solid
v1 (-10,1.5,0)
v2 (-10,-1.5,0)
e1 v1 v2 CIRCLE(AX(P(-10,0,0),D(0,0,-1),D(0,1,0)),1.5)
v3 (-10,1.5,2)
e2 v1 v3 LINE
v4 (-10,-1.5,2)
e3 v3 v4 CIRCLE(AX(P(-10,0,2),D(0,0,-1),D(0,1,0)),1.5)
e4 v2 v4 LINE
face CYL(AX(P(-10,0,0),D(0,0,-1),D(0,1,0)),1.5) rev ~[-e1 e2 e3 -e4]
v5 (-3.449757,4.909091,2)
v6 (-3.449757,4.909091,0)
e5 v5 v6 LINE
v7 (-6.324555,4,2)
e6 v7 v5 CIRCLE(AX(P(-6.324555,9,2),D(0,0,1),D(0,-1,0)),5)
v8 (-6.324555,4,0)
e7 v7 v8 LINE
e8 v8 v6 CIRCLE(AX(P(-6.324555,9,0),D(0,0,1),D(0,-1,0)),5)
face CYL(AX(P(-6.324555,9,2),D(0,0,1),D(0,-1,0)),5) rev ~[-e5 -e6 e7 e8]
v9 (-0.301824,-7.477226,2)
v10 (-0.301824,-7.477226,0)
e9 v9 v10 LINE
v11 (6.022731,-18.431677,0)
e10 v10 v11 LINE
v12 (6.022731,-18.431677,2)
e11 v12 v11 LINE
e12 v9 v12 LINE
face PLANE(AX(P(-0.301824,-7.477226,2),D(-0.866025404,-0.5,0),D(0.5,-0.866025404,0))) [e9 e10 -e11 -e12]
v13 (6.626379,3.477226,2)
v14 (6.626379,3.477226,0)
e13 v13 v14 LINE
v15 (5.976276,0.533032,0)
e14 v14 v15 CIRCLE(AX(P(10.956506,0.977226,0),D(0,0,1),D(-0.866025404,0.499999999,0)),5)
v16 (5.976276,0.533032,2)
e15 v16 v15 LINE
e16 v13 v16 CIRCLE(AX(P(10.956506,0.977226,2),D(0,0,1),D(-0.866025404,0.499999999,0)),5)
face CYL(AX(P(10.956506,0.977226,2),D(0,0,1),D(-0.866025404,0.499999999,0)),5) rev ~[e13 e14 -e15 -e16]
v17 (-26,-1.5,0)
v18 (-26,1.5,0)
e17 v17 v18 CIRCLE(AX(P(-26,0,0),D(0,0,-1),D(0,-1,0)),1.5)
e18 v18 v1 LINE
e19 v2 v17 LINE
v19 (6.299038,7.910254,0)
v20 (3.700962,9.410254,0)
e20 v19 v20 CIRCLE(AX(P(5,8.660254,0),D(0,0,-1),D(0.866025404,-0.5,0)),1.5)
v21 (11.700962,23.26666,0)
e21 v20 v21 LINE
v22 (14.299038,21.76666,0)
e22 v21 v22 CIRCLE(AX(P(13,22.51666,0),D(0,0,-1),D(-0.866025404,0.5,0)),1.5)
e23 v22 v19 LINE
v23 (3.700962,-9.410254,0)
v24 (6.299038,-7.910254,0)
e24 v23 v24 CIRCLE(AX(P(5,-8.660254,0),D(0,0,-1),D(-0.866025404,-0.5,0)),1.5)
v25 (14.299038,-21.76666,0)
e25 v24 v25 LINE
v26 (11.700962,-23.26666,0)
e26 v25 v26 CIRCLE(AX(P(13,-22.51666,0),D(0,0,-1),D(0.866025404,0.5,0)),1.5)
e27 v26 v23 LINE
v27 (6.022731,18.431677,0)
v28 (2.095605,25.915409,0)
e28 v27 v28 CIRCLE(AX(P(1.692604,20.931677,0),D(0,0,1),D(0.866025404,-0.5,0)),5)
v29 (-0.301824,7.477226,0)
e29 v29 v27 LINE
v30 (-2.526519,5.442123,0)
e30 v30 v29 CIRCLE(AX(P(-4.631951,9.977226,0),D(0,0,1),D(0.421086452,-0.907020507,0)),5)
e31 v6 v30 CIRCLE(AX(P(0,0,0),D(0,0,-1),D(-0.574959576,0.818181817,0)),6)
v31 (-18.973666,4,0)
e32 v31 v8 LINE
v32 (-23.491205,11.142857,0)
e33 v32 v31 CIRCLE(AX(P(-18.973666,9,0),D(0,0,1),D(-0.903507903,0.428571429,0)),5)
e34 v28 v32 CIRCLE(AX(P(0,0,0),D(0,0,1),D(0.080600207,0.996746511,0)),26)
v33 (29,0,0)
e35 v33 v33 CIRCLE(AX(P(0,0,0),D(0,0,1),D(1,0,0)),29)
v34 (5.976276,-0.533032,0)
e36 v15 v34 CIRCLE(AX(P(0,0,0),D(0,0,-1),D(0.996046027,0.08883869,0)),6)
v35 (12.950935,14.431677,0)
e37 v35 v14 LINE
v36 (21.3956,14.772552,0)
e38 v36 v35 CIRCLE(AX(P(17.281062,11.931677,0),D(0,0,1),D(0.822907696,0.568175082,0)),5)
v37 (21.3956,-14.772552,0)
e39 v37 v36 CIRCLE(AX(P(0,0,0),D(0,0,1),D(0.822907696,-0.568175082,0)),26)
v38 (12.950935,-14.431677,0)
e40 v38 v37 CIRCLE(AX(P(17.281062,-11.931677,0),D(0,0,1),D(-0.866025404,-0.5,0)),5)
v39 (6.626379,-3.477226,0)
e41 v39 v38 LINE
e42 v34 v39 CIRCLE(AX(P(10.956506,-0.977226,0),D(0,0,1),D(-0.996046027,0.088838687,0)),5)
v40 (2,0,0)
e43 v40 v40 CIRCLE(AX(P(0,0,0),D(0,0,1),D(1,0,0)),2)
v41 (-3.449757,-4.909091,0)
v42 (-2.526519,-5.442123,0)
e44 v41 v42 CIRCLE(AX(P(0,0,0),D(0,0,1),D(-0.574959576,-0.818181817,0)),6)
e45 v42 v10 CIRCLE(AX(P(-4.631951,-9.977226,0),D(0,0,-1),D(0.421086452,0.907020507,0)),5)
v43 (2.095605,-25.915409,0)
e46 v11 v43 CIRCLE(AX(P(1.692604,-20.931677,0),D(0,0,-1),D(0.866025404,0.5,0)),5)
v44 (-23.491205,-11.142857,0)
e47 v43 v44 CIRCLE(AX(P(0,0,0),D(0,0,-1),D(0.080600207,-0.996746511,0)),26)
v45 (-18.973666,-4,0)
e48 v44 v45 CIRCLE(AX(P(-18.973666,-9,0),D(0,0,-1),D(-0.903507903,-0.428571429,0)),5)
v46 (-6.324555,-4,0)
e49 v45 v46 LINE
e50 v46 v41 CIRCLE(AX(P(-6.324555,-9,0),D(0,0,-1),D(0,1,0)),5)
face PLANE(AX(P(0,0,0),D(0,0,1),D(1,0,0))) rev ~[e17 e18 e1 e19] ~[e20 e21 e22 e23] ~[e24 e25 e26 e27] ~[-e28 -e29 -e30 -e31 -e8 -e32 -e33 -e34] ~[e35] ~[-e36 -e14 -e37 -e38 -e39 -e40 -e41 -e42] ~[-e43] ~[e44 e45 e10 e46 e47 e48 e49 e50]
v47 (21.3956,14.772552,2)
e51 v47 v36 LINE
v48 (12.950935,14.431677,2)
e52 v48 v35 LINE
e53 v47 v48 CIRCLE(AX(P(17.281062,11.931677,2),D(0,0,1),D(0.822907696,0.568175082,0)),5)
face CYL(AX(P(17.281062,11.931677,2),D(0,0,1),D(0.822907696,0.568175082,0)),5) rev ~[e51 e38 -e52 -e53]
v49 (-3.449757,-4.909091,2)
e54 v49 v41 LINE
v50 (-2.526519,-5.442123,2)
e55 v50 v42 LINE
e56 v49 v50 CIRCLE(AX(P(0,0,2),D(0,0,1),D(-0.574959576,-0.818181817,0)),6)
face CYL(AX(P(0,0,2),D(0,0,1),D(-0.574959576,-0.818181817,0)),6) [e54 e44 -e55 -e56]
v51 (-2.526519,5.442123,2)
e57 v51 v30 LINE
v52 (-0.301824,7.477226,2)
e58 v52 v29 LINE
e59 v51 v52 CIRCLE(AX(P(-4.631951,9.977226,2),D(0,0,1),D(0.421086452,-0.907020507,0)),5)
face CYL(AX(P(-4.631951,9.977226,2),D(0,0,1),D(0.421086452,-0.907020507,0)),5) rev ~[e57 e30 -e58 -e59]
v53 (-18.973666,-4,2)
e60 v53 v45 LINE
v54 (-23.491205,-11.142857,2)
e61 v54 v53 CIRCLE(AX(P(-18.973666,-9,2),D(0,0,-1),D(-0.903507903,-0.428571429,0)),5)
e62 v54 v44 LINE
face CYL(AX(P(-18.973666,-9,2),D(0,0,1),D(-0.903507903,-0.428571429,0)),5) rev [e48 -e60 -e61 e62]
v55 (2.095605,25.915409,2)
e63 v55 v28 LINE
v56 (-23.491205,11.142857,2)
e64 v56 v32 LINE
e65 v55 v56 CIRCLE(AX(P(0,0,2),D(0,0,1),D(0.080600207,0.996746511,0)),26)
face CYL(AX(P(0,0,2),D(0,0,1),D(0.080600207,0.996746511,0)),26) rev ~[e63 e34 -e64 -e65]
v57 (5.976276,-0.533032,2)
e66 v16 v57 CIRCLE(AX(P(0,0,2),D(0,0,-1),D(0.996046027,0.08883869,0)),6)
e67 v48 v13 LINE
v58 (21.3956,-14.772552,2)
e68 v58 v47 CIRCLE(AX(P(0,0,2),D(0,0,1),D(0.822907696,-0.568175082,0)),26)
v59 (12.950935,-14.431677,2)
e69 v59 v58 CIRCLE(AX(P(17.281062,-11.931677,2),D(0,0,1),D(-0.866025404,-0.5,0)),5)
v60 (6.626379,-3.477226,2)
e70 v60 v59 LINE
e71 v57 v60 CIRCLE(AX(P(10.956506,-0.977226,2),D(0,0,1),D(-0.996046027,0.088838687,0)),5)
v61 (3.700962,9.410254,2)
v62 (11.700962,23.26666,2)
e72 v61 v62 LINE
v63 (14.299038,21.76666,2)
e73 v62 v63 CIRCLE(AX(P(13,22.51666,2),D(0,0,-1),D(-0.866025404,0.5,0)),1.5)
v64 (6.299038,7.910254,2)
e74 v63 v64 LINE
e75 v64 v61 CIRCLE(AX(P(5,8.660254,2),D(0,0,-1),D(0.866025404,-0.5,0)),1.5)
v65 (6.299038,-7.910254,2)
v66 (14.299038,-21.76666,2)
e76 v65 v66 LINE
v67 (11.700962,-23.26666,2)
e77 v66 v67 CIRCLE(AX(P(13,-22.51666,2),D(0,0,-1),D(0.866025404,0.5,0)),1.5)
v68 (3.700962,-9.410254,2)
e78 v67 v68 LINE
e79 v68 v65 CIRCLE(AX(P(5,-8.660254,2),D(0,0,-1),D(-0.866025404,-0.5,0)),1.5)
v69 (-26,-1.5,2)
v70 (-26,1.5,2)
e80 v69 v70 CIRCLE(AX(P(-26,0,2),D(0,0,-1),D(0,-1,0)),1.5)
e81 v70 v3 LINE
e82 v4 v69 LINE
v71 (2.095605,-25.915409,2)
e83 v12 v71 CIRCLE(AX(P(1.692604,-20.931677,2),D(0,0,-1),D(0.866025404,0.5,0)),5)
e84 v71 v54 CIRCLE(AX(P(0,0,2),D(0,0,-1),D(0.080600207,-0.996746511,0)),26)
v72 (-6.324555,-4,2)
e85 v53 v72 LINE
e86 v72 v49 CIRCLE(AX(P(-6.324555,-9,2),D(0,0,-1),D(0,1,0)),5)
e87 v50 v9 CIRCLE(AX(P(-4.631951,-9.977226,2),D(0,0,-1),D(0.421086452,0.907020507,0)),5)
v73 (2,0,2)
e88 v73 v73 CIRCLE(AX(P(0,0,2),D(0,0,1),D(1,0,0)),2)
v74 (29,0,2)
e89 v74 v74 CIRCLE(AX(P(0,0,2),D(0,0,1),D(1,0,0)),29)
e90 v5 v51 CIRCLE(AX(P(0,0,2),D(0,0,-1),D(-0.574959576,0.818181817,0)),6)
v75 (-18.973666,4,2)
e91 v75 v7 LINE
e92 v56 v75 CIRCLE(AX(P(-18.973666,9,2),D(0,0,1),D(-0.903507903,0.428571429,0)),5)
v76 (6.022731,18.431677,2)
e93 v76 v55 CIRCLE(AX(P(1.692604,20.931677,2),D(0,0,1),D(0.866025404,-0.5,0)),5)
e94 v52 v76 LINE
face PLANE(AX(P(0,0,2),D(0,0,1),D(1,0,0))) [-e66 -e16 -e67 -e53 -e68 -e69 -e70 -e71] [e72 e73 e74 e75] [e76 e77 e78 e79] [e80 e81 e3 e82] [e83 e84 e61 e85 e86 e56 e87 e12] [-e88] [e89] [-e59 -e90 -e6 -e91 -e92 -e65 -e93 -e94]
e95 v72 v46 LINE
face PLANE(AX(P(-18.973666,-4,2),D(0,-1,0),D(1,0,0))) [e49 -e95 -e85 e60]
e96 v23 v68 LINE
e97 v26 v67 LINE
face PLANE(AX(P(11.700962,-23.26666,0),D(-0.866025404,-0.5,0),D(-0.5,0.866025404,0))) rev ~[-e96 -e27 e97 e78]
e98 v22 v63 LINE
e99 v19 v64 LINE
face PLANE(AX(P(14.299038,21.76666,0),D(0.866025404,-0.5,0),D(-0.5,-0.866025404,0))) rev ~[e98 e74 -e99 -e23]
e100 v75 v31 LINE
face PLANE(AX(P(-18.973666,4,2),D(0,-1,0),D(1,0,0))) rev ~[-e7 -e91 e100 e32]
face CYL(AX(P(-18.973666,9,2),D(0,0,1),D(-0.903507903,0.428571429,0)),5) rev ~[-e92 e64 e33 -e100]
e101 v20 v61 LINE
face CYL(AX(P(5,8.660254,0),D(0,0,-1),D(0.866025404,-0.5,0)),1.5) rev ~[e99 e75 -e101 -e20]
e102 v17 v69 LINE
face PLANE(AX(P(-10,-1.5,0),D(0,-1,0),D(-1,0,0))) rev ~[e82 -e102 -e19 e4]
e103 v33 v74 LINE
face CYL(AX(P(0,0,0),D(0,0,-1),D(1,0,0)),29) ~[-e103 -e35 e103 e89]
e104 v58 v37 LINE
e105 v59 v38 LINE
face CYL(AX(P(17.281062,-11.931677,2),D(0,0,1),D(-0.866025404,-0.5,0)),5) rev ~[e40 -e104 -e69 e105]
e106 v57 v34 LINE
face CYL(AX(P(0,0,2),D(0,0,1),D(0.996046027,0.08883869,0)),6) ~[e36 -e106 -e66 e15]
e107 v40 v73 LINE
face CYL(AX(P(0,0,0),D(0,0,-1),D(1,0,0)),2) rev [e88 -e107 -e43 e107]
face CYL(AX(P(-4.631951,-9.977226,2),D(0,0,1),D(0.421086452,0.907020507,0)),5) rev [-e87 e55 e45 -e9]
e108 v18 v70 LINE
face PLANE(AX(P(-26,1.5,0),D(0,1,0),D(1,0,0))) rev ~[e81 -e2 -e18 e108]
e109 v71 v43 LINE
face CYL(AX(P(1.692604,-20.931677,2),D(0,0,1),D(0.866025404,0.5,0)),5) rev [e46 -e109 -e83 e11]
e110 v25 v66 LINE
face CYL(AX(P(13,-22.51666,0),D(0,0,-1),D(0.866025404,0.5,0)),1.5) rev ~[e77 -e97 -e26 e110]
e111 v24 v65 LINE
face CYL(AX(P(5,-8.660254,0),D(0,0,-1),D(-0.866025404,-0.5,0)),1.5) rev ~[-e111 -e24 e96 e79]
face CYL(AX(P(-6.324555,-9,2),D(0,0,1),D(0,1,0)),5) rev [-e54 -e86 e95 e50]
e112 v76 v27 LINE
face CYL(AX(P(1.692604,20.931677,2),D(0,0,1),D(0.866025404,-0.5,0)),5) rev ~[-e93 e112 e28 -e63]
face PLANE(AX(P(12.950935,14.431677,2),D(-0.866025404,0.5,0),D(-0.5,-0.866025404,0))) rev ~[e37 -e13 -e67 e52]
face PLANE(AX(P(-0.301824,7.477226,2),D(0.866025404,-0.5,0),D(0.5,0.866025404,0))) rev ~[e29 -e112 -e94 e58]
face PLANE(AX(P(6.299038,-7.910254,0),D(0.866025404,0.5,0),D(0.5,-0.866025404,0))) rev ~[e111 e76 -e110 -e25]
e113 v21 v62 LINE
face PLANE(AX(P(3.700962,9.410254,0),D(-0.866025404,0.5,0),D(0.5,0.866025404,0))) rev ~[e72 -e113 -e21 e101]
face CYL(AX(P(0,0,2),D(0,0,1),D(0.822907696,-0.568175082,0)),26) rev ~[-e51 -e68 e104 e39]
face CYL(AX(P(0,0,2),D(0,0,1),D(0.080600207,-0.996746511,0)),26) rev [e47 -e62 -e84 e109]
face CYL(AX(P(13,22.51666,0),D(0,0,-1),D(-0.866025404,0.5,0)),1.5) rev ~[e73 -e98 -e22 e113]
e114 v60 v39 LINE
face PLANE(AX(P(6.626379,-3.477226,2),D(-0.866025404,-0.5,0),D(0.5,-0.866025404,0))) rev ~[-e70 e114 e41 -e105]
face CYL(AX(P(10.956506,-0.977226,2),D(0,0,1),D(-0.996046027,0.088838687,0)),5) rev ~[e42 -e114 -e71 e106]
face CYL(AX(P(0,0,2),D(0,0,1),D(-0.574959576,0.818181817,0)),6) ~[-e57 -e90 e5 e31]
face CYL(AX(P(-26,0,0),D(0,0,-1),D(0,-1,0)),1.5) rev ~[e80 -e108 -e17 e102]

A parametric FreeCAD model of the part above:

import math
import FreeCAD as App
import Part
import Sketcher

V = App.Vector
Q = App.Units.Quantity

doc = App.newDocument("Part")
body = doc.addObject("PartDesign::Body", "Body")

# Sketch on XY plane
sketch1 = body.newObject("Sketcher::SketchObject", "Sketch")
sketch1.AttachmentSupport = (doc.getObject("XY_Plane"), [""])
sketch1.MapMode = "FlatFace"
sketch1.addGeometry([
    Part.Circle(V(0, 0, 0), V(0, 0, 1), 29),  # 0
    Part.ArcOfCircle(Part.Circle(V(5, -8.660254, 0), V(0, 0, 1), 1.5), math.radians(30), math.radians(210)),  # 1
    Part.LineSegment(V(6.299038, -7.910254, 0), V(14.299038, -21.76666, 0)),  # 2
    Part.ArcOfCircle(Part.Circle(V(13, -22.51666, 0), V(0, 0, 1), 1.5), math.radians(-150), math.radians(30)),  # 3
    Part.LineSegment(V(11.700962, -23.26666, 0), V(3.700962, -9.410254, 0)),  # 4
    Part.ArcOfCircle(Part.Circle(V(-10, 0, 0), V(0, 0, 1), 1.5), math.radians(-90), math.radians(90)),  # 5
    Part.LineSegment(V(-10, -1.5, 0), V(-26, -1.5, 0)),  # 6
    Part.ArcOfCircle(Part.Circle(V(-26, 0, 0), V(0, 0, 1), 1.5), math.radians(90), math.radians(270)),  # 7
    Part.LineSegment(V(-26, 1.5, 0), V(-10, 1.5, 0)),  # 8
    Part.Circle(V(0, 0, 0), V(0, 0, 1), 2),  # 9
    Part.ArcOfCircle(Part.Circle(V(5, 8.660254, 0), V(0, 0, 1), 1.5), math.radians(150), math.radians(330)),  # 10
    Part.LineSegment(V(3.700962, 9.410254, 0), V(11.700962, 23.26666, 0)),  # 11
    Part.ArcOfCircle(Part.Circle(V(13, 22.51666, 0), V(0, 0, 1), 1.5), math.radians(-30), math.radians(150)),  # 12
    Part.LineSegment(V(14.299038, 21.76666, 0), V(6.299038, 7.910254, 0)),  # 13
], False)
sketch1.addConstraint([
    Sketcher.Constraint("Tangent", 1, 1, 2, 1),
    Sketcher.Constraint("Tangent", 2, 2, 3, 2),
    Sketcher.Constraint("Tangent", 3, 1, 4, 1),
    Sketcher.Constraint("Tangent", 4, 2, 1, 2),
    Sketcher.Constraint("Tangent", 5, 1, 6, 1),
    Sketcher.Constraint("Tangent", 6, 2, 7, 2),
    Sketcher.Constraint("Tangent", 7, 1, 8, 1),
    Sketcher.Constraint("Tangent", 8, 2, 5, 2),
    Sketcher.Constraint("Tangent", 10, 1, 11, 1),
    Sketcher.Constraint("Tangent", 11, 2, 12, 2),
    Sketcher.Constraint("Tangent", 12, 1, 13, 1),
    Sketcher.Constraint("Tangent", 13, 2, 10, 2),
    Sketcher.Constraint("Horizontal", 6),
    Sketcher.Constraint("Horizontal", 8),
    Sketcher.Constraint("Coincident", 0, 3, -1, 1),
    Sketcher.Constraint("Coincident", 9, 3, -1, 1),
    Sketcher.Constraint("Equal", 1, 3),
    Sketcher.Constraint("Equal", 3, 5),
    Sketcher.Constraint("Equal", 7, 10),
    Sketcher.Constraint("Equal", 10, 12),
    Sketcher.Constraint("Symmetric", 1, 3, 10, 3, -1),
    Sketcher.Constraint("Symmetric", 3, 3, 12, 3, -1),
    Sketcher.Constraint("PointOnObject", 5, 3, -1),
    Sketcher.Constraint("Diameter", 0, Q("58 mm")),
    Sketcher.Constraint("Diameter", 9, Q("4 mm")),
    Sketcher.Constraint("Radius", 1, Q("1.5 mm")),
    Sketcher.Constraint("DistanceX", 6, 2, 6, 1, Q("16 mm")),
    Sketcher.Constraint("Angle", 2, Q("-60 deg")),
    Sketcher.Constraint("Distance", 2, Q("16 mm")),
    Sketcher.Constraint("DistanceX", -1, 1, 1, 3, Q("5 mm")),
    Sketcher.Constraint("DistanceX", 5, 3, -1, 1, Q("10 mm")),
    Sketcher.Constraint("DistanceY", 3, 3, -1, 1, Q("22.51666 mm")),
])
pad1 = body.newObject("PartDesign::Pad", "Pad")
pad1.Profile = sketch1
pad1.Length = 2

# Sketch on XY plane
sketch2 = body.newObject("Sketcher::SketchObject", "Sketch001")
sketch2.AttachmentSupport = (doc.getObject("XY_Plane"), [""])
sketch2.MapMode = "FlatFace"
sketch2.AttachmentOffset = App.Placement(V(0, 0, 2), App.Rotation())
sketch2.addGeometry([
    Part.LineSegment(V(-18.973666, 4, 0), V(-6.324555, 4, 0)),  # 0
    Part.ArcOfCircle(Part.Circle(V(-6.324555, 9, 0), V(0, 0, 1), 5), math.radians(-90), math.radians(-54.903199)),  # 1
    Part.ArcOfCircle(Part.Circle(V(0, 0, 0), V(0, 0, 1), 6), math.radians(114.903199), math.radians(125.096801)),  # 2
    Part.ArcOfCircle(Part.Circle(V(-4.631951, 9.977226, 0), V(0, 0, 1), 5), math.radians(-65.096801), math.radians(-30)),  # 3
    Part.LineSegment(V(-0.301824, 7.477226, 0), V(6.022731, 18.431677, 0)),  # 4
    Part.ArcOfCircle(Part.Circle(V(1.692604, 20.931677, 0), V(0, 0, 1), 5), math.radians(-30), math.radians(85.376934)),  # 5
    Part.ArcOfCircle(Part.Circle(V(0, 0, 0), V(0, 0, 1), 26), math.radians(85.376934), math.radians(154.623066)),  # 6
    Part.ArcOfCircle(Part.Circle(V(-18.973666, 9, 0), V(0, 0, 1), 5), math.radians(154.623066), math.radians(270)),  # 7
    Part.LineSegment(V(-6.324555, -4, 0), V(-18.973666, -4, 0)),  # 8
    Part.ArcOfCircle(Part.Circle(V(-18.973666, -9, 0), V(0, 0, 1), 5), math.radians(90), math.radians(205.376934)),  # 9
    Part.ArcOfCircle(Part.Circle(V(0, 0, 0), V(0, 0, 1), 26), math.radians(-154.623066), math.radians(-85.376934)),  # 10
    Part.ArcOfCircle(Part.Circle(V(1.692604, -20.931677, 0), V(0, 0, 1), 5), math.radians(-85.376934), math.radians(30)),  # 11
    Part.LineSegment(V(6.022731, -18.431677, 0), V(-0.301824, -7.477226, 0)),  # 12
    Part.ArcOfCircle(Part.Circle(V(-4.631951, -9.977226, 0), V(0, 0, 1), 5), math.radians(30), math.radians(65.096801)),  # 13
    Part.ArcOfCircle(Part.Circle(V(0, 0, 0), V(0, 0, 1), 6), math.radians(-125.096801), math.radians(-114.903199)),  # 14
    Part.ArcOfCircle(Part.Circle(V(-6.324555, -9, 0), V(0, 0, 1), 5), math.radians(54.903199), math.radians(90)),  # 15
    Part.LineSegment(V(12.950935, 14.431677, 0), V(6.626379, 3.477226, 0)),  # 16
    Part.ArcOfCircle(Part.Circle(V(10.956506, 0.977226, 0), V(0, 0, 1), 5), math.radians(150), math.radians(185.096801)),  # 17
    Part.ArcOfCircle(Part.Circle(V(0, 0, 0), V(0, 0, 1), 6), math.radians(-5.096801), math.radians(5.096801)),  # 18
    Part.ArcOfCircle(Part.Circle(V(10.956506, -0.977226, 0), V(0, 0, 1), 5), math.radians(174.903199), math.radians(210)),  # 19
    Part.LineSegment(V(6.626379, -3.477226, 0), V(12.950935, -14.431677, 0)),  # 20
    Part.ArcOfCircle(Part.Circle(V(17.281062, -11.931677, 0), V(0, 0, 1), 5), math.radians(-150), math.radians(-34.623066)),  # 21
    Part.ArcOfCircle(Part.Circle(V(0, 0, 0), V(0, 0, 1), 26), math.radians(-34.623066), math.radians(34.623066)),  # 22
    Part.ArcOfCircle(Part.Circle(V(17.281062, 11.931677, 0), V(0, 0, 1), 5), math.radians(34.623066), math.radians(150)),  # 23
], False)
sketch2.addConstraint([
    Sketcher.Constraint("Tangent", 0, 2, 1, 1),
    Sketcher.Constraint("Tangent", 1, 2, 2, 2),
    Sketcher.Constraint("Tangent", 2, 1, 3, 1),
    Sketcher.Constraint("Tangent", 3, 2, 4, 1),
    Sketcher.Constraint("Tangent", 4, 2, 5, 1),
    Sketcher.Constraint("Tangent", 5, 2, 6, 1),
    Sketcher.Constraint("Tangent", 6, 2, 7, 1),
    Sketcher.Constraint("Tangent", 7, 2, 0, 1),
    Sketcher.Constraint("Tangent", 8, 2, 9, 1),
    Sketcher.Constraint("Tangent", 9, 2, 10, 1),
    Sketcher.Constraint("Tangent", 10, 2, 11, 1),
    Sketcher.Constraint("Tangent", 11, 2, 12, 1),
    Sketcher.Constraint("Tangent", 12, 2, 13, 1),
    Sketcher.Constraint("Tangent", 13, 2, 14, 2),
    Sketcher.Constraint("Tangent", 14, 1, 15, 1),
    Sketcher.Constraint("Tangent", 15, 2, 8, 1),
    Sketcher.Constraint("Tangent", 16, 2, 17, 1),
    Sketcher.Constraint("Tangent", 17, 2, 18, 2),
    Sketcher.Constraint("Tangent", 18, 1, 19, 1),
    Sketcher.Constraint("Tangent", 19, 2, 20, 1),
    Sketcher.Constraint("Tangent", 20, 2, 21, 1),
    Sketcher.Constraint("Tangent", 21, 2, 22, 1),
    Sketcher.Constraint("Tangent", 22, 2, 23, 1),
    Sketcher.Constraint("Tangent", 23, 2, 16, 1),
    Sketcher.Constraint("Horizontal", 0),
    Sketcher.Constraint("Horizontal", 8),
    Sketcher.Constraint("Coincident", 2, 3, -1, 1),
    Sketcher.Constraint("Coincident", 6, 3, -1, 1),
    Sketcher.Constraint("Coincident", 10, 3, -1, 1),
    Sketcher.Constraint("Coincident", 14, 3, -1, 1),
    Sketcher.Constraint("Coincident", 18, 3, -1, 1),
    Sketcher.Constraint("Coincident", 22, 3, -1, 1),
    Sketcher.Constraint("Equal", 1, 3),
    Sketcher.Constraint("Equal", 3, 5),
    Sketcher.Constraint("Equal", 5, 7),
    Sketcher.Constraint("Equal", 7, 9),
    Sketcher.Constraint("Equal", 6, 10),
    Sketcher.Constraint("Equal", 9, 11),
    Sketcher.Constraint("Equal", 11, 13),
    Sketcher.Constraint("Equal", 2, 14),
    Sketcher.Constraint("Equal", 13, 15),
    Sketcher.Constraint("Equal", 15, 17),
    Sketcher.Constraint("Equal", 14, 18),
    Sketcher.Constraint("Equal", 17, 19),
    Sketcher.Constraint("Equal", 19, 21),
    Sketcher.Constraint("Equal", 10, 22),
    Sketcher.Constraint("Equal", 21, 23),
    Sketcher.Constraint("Symmetric", 4, 2, 11, 2, -1),
    Sketcher.Constraint("Symmetric", 16, 2, 19, 2, -1),
    Sketcher.Constraint("Parallel", 4, 16),
    Sketcher.Constraint("Vertical", 7, 3, 9, 3),
    Sketcher.Constraint("Equal", 12, 16),
    Sketcher.Constraint("Radius", 1, Q("5 mm")),
    Sketcher.Constraint("Radius", 2, Q("6 mm")),
    Sketcher.Constraint("Radius", 6, Q("26 mm")),
    Sketcher.Constraint("Angle", 4, Q("60 deg")),
    Sketcher.Constraint("DistanceY", -1, 1, 1, 3, Q("9 mm")),
    Sketcher.Constraint("DistanceY", 17, 3, 3, 3, Q("9 mm")),
])
pocket1 = body.newObject("PartDesign::Pocket", "Pocket")
pocket1.Profile = sketch2
pocket1.Length = 2

doc.recompute()
